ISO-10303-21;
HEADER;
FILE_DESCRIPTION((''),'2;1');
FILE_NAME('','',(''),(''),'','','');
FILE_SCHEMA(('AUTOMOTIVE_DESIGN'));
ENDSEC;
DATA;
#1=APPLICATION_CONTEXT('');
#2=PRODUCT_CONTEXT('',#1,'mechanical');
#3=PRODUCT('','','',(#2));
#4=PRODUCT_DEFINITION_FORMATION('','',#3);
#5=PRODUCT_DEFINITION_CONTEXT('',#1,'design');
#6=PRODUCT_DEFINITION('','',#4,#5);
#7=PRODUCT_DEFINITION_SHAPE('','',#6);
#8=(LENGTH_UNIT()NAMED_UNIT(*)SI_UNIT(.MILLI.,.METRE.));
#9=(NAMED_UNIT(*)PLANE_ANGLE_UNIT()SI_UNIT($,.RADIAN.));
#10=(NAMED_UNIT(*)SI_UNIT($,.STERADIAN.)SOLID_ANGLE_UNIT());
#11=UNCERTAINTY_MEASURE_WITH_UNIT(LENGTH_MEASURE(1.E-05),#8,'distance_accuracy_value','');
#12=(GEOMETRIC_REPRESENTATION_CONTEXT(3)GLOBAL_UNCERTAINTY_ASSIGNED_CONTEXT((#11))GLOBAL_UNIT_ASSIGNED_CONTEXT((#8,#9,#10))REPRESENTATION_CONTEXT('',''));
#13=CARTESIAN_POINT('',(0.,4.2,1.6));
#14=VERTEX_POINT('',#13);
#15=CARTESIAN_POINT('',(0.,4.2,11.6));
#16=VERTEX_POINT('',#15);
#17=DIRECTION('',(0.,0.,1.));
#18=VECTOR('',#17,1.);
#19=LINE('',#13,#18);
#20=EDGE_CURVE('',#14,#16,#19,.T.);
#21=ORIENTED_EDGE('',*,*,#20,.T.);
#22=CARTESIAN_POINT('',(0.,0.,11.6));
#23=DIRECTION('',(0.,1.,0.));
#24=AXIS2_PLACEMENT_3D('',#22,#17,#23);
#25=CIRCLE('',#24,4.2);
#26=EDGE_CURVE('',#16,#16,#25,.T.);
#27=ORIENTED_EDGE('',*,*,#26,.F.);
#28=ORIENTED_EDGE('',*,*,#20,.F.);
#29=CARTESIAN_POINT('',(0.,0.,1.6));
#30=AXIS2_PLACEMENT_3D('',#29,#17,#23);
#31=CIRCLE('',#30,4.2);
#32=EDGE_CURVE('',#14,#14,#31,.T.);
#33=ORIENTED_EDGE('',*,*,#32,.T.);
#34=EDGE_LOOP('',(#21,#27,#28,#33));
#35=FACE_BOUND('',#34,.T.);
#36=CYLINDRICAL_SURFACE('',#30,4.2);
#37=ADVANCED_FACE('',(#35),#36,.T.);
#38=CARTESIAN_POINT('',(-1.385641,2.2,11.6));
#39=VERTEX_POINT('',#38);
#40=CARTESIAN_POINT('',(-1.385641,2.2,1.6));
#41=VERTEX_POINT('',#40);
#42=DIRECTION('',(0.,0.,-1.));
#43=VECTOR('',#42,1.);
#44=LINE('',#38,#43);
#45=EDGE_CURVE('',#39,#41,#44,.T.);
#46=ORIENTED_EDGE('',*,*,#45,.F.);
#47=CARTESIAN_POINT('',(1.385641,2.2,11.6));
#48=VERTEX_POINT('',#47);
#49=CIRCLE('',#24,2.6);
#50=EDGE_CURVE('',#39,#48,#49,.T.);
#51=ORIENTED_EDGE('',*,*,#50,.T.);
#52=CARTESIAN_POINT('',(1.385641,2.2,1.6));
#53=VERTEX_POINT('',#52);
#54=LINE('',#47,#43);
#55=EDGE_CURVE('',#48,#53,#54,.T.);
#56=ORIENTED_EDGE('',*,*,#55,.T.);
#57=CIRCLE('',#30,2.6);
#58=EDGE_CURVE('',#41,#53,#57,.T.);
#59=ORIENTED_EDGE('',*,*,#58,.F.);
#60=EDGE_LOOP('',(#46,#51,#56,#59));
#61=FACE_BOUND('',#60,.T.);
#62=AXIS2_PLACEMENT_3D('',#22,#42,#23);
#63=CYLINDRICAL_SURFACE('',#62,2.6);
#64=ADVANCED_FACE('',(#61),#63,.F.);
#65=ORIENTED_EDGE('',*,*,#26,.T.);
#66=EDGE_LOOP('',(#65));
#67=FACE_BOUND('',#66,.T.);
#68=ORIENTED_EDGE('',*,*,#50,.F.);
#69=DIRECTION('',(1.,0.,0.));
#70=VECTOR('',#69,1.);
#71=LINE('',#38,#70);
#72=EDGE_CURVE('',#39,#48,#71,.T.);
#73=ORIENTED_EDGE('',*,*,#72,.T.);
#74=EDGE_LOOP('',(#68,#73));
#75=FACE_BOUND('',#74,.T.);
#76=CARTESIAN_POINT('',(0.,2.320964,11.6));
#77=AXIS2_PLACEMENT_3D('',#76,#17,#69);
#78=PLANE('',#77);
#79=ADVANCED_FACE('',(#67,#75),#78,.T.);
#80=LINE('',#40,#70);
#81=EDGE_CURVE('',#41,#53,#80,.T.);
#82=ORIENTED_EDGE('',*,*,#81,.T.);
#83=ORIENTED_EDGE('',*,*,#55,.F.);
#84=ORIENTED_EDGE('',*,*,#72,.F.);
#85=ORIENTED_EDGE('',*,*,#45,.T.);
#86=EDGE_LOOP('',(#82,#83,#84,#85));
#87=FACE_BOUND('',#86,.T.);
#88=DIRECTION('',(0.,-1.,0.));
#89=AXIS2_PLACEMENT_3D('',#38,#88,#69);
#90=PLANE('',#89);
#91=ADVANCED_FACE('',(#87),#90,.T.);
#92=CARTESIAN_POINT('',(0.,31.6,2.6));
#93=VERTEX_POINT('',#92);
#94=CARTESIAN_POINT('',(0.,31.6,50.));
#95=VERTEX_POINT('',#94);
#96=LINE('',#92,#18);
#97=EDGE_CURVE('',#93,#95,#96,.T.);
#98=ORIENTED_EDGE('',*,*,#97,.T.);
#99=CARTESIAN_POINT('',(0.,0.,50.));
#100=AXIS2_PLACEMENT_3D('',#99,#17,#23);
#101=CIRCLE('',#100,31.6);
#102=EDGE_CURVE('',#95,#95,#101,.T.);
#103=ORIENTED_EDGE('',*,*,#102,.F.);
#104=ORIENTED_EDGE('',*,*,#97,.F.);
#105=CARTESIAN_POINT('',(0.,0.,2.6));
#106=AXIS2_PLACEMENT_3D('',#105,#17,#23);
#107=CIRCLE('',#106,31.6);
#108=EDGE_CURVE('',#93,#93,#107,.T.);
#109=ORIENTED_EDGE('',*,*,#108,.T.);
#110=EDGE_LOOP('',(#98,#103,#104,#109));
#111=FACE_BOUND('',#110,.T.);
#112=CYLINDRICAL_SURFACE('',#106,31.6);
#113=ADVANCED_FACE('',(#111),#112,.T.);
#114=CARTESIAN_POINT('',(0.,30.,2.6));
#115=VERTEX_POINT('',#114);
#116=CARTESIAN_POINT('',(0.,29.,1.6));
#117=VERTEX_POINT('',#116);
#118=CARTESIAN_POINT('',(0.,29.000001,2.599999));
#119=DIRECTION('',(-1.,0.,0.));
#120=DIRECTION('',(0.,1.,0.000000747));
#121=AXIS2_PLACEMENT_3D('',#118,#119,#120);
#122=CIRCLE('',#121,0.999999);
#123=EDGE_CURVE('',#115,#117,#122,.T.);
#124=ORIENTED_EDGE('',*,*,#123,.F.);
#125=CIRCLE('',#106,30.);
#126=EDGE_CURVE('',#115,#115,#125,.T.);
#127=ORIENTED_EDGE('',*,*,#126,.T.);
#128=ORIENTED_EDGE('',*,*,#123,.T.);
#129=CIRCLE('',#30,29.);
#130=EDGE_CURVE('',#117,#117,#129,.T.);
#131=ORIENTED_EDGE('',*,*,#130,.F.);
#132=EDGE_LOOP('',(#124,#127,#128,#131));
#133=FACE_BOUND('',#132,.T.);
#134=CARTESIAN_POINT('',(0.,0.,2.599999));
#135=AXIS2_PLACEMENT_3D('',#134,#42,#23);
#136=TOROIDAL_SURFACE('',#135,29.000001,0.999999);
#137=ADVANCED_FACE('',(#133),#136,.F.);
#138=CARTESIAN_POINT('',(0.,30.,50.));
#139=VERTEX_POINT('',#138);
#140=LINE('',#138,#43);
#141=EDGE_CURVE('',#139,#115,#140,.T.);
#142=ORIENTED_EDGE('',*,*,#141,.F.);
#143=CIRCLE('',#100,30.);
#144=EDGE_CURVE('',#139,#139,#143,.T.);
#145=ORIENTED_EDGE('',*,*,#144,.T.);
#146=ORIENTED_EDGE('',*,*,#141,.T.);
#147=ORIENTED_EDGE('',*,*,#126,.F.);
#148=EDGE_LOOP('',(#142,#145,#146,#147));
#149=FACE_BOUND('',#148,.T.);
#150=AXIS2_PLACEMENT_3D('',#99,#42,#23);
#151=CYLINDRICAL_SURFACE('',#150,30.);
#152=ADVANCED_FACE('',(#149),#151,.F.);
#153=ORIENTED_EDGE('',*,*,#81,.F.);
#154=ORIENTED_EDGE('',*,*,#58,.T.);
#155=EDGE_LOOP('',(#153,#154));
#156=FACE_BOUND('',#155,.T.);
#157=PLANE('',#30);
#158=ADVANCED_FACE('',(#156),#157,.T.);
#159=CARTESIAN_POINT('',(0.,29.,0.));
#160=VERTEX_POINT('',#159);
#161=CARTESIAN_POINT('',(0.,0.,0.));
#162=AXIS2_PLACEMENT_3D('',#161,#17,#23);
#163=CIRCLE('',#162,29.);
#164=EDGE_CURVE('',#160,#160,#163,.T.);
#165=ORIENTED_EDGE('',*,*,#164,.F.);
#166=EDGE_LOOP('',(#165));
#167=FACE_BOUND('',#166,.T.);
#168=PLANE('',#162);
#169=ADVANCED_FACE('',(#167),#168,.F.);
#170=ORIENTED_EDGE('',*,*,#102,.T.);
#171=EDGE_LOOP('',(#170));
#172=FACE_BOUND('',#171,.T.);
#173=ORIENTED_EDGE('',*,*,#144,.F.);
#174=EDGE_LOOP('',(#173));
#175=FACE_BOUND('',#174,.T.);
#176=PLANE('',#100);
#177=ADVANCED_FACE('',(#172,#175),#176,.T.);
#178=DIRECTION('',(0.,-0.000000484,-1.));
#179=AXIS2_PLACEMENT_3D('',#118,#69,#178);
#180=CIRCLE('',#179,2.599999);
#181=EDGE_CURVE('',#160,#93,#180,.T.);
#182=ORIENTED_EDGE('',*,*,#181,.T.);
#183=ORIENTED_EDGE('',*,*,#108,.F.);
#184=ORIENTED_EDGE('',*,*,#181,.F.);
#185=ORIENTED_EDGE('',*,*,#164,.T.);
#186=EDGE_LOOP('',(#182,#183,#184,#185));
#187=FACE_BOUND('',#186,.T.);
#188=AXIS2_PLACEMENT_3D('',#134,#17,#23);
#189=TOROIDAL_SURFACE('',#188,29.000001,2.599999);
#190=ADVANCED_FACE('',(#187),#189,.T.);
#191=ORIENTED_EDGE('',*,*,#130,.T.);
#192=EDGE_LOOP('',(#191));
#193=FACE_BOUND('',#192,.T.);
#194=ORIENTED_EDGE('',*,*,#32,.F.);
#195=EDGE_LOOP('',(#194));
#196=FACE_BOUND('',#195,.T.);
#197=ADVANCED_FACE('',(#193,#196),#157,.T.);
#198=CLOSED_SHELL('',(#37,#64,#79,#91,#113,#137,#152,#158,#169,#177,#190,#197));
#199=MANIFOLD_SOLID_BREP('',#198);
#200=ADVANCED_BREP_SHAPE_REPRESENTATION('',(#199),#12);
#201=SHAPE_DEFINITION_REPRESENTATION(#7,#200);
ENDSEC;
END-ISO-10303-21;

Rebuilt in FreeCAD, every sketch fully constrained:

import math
import FreeCAD as App
import Part
import Sketcher

V = App.Vector
Q = App.Units.Quantity

doc = App.newDocument("Part")
body = doc.addObject("PartDesign::Body", "Body")

sketch1 = body.newObject("Sketcher::SketchObject", "Sketch")
sketch1.AttachmentSupport = (doc.getObject("YZ_Plane"), [""])
sketch1.MapMode = "FlatFace"
sketch1.addGeometry([
    Part.LineSegment(V(0, 1.6, 0), V(0, 0, 0)),
    Part.LineSegment(V(0, 0, 0), V(29, 0, 0)),
    Part.ArcOfCircle(Part.Circle(V(29.000001, 2.599999, 0), V(0, 0, 1), 2.599999), math.radians(-90.000028), math.radians(0.000028)),
    Part.LineSegment(V(31.6, 2.6, 0), V(31.6, 50, 0)),
    Part.LineSegment(V(31.6, 50, 0), V(30, 50, 0)),
    Part.LineSegment(V(30, 50, 0), V(30, 2.6, 0)),
    Part.ArcOfCircle(Part.Circle(V(29.000001, 2.599999, 0), V(0, 0, 1), 0.999999), math.radians(-90.000043), math.radians(0.000043)),
    Part.LineSegment(V(29, 1.6, 0), V(4.2, 1.6, 0)),
    Part.LineSegment(V(4.2, 1.6, 0), V(4.2, 11.6, 0)),
    Part.LineSegment(V(4.2, 11.6, 0), V(2.6, 11.6, 0)),
    Part.LineSegment(V(2.6, 11.6, 0), V(2.6, 1.6, 0)),
    Part.LineSegment(V(2.6, 1.6, 0), V(0, 1.6, 0)),
], False)
sketch1.addConstraint([
    Sketcher.Constraint("Coincident", 0, 2, 1, 1),
    Sketcher.Constraint("Tangent", 1, 2, 2, 1),
    Sketcher.Constraint("Tangent", 2, 2, 3, 1),
    Sketcher.Constraint("Coincident", 3, 2, 4, 1),
    Sketcher.Constraint("Coincident", 4, 2, 5, 1),
    Sketcher.Constraint("Tangent", 5, 2, 6, 2),
    Sketcher.Constraint("Tangent", 6, 1, 7, 1),
    Sketcher.Constraint("Coincident", 7, 2, 8, 1),
    Sketcher.Constraint("Coincident", 8, 2, 9, 1),
    Sketcher.Constraint("Coincident", 9, 2, 10, 1),
    Sketcher.Constraint("Coincident", 10, 2, 11, 1),
    Sketcher.Constraint("Coincident", 11, 2, 0, 1),
    Sketcher.Constraint("Vertical", 0),
    Sketcher.Constraint("Horizontal", 1),
    Sketcher.Constraint("Vertical", 3),
    Sketcher.Constraint("Horizontal", 4),
    Sketcher.Constraint("Vertical", 5),
    Sketcher.Constraint("Horizontal", 7),
    Sketcher.Constraint("Vertical", 8),
    Sketcher.Constraint("Horizontal", 9),
    Sketcher.Constraint("Vertical", 10),
    Sketcher.Constraint("Horizontal", 11),
    Sketcher.Constraint("Coincident", 0, 2, -1, 1),
    Sketcher.Constraint("Coincident", 6, 3, 2, 3),
    Sketcher.Constraint("Horizontal", 7, 2, 10, 2),
    Sketcher.Constraint("Equal", 4, 9),
    Sketcher.Constraint("Radius", 6, Q("0.999999 mm")),
    Sketcher.Constraint("Radius", 2, Q("2.599999 mm")),
    Sketcher.Constraint("DistanceX", 1, 1, 1, 2, Q("29 mm")),
    Sketcher.Constraint("DistanceY", 8, 1, 8, 2, Q("10 mm")),
    Sketcher.Constraint("DistanceX", 7, 2, 7, 1, Q("24.8 mm")),
    Sketcher.Constraint("DistanceY", 3, 1, 3, 2, Q("47.4 mm")),
])
revolution = body.newObject("PartDesign::Revolution", "Revolution")
revolution.Profile = sketch1
revolution.ReferenceAxis = (sketch1, ["V_Axis"])
revolution.Angle = 360

sketch2 = body.newObject("Sketcher::SketchObject", "Sketch001")
sketch2.AttachmentSupport = (doc.getObject("XY_Plane"), [""])
sketch2.MapMode = "FlatFace"
sketch2.AttachmentOffset = App.Placement(V(0, 0, 11.6), App.Rotation())
sketch2.addGeometry([
    Part.ArcOfCircle(Part.Circle(V(0, -0.000001, 0), V(0, 0, 1), 2.600001), math.radians(57.79578), math.radians(122.20422)),
    Part.LineSegment(V(-1.385641, 2.2, 0), V(1.385641, 2.2, 0)),
], False)
sketch2.addConstraint([
    Sketcher.Constraint("Coincident", 0, 1, 1, 2),
    Sketcher.Constraint("Coincident", 1, 1, 0, 2),
    Sketcher.Constraint("Horizontal", 1),
    Sketcher.Constraint("Coincident", 0, 3, -1, 1),
    Sketcher.Constraint("Radius", 0, Q("2.600001 mm")),
    Sketcher.Constraint("DistanceY", -1, 1, 0, 1, Q("2.2 mm")),
])
pad1 = body.newObject("PartDesign::Pad", "Pad")
pad1.Profile = sketch2
pad1.Type = "UpToLast"
pad1.Reversed = True

doc.recompute()
